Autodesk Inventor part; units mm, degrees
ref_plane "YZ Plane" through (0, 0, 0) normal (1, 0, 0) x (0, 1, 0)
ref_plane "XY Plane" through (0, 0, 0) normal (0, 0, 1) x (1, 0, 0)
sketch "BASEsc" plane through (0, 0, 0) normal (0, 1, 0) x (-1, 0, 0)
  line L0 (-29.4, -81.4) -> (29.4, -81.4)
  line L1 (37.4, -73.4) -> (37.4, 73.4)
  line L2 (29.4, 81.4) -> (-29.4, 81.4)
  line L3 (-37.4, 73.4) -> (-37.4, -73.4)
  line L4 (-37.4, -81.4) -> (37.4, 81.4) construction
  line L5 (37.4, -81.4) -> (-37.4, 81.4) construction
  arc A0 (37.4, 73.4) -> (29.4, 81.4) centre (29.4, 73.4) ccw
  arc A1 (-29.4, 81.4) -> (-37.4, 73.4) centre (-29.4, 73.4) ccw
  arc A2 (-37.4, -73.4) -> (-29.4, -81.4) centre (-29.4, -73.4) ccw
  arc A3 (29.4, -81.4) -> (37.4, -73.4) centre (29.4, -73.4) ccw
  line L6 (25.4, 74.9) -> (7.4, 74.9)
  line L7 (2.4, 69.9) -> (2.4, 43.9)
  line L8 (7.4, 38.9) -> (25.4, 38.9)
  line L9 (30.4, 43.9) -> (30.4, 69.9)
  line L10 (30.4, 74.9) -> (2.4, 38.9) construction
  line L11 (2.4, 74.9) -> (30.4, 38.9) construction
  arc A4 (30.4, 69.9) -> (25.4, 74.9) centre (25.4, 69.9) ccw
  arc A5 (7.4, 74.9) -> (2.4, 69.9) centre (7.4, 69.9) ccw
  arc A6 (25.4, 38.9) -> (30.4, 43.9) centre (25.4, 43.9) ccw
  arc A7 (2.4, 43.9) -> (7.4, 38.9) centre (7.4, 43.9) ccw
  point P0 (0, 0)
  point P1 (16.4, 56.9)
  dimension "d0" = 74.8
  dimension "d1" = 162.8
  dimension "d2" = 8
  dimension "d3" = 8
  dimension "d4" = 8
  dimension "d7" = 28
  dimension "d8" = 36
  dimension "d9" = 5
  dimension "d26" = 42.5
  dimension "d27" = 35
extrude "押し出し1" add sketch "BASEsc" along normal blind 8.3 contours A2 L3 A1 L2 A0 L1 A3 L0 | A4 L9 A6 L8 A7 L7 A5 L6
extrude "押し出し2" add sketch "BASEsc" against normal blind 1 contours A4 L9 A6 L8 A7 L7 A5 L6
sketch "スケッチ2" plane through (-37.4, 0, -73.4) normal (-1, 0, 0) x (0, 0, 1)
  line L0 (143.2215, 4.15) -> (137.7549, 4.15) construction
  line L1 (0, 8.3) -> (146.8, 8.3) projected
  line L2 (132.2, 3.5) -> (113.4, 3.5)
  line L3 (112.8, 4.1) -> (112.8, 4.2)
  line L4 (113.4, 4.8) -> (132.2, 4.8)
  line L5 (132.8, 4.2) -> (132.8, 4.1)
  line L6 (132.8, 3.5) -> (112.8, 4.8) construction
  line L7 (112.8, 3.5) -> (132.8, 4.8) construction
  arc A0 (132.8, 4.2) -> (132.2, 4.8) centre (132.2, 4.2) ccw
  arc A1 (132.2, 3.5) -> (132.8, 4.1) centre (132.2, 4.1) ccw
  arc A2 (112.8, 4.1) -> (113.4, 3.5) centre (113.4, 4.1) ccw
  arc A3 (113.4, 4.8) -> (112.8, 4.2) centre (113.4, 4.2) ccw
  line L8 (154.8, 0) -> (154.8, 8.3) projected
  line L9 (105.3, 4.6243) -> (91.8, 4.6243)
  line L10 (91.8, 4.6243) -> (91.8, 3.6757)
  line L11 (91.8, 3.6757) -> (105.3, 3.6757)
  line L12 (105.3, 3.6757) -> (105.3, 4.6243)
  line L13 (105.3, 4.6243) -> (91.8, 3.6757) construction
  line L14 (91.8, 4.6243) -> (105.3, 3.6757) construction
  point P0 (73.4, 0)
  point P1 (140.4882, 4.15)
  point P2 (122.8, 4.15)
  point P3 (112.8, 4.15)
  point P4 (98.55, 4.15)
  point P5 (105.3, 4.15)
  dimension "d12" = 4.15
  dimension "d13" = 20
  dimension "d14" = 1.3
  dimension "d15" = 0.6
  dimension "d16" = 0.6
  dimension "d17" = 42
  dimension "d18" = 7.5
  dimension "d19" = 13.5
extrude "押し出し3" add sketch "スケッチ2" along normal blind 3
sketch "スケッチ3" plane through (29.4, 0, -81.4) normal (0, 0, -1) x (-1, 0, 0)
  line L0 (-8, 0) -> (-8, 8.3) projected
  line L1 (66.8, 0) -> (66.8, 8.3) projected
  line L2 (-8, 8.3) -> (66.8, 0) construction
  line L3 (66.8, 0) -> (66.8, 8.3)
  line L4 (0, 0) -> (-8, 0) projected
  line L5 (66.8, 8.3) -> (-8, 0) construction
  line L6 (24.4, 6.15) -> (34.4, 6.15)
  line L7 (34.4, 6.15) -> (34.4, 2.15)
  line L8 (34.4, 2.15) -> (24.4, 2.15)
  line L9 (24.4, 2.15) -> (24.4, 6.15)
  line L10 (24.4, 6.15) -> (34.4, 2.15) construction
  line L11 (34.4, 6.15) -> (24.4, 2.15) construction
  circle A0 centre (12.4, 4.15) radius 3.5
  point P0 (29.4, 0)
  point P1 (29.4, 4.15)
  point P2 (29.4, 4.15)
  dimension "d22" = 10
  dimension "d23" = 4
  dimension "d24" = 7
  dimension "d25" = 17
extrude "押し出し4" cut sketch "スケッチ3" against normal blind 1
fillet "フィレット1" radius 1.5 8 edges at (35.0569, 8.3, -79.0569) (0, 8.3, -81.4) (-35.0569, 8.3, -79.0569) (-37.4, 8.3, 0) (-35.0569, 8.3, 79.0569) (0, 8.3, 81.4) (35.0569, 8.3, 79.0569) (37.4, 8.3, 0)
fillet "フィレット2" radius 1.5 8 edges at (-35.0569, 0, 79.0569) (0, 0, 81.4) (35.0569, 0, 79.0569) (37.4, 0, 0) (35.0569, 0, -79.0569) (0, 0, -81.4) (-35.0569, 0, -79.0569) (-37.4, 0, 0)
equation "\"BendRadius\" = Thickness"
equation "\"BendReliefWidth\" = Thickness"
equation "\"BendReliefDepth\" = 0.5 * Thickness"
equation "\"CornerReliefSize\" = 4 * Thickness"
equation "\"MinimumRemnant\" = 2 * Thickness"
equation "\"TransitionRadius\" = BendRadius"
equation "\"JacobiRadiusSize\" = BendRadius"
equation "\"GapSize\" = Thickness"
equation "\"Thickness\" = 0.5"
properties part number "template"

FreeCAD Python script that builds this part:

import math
import FreeCAD as App
import Part
import Sketcher
from FreeCAD import Vector


def edges_at(feature, points):
    """Names of the edges that pass closest to the given points."""
    edges = feature.Shape.Edges
    near = lambda p: min(range(len(edges)), key=lambda i: edges[i].distToShape(Part.Vertex(*p))[0])
    return sorted({f"Edge{near(p) + 1}" for p in points})

doc = App.newDocument("Part")
body = doc.addObject("PartDesign::Body", "Body")

sketch1 = body.newObject("Sketcher::SketchObject", "Sketch")
sketch1.AttachmentSupport = (doc.getObject("XZ_Plane"), [""])
sketch1.MapMode = "FlatFace"
sketch1.addGeometry(Part.ArcOfCircle(Part.Circle(Vector(29, -73, 0), Vector(0, 0, 1), 8), math.radians(-90), math.radians(0)), False)
sketch1.addGeometry(Part.LineSegment(Vector(29, -81, 0), Vector(-29, -81, 0)), False)
sketch1.addGeometry(Part.ArcOfCircle(Part.Circle(Vector(-29, -73, 0), Vector(0, 0, 1), 8), math.radians(180), math.radians(270)), False)
sketch1.addGeometry(Part.LineSegment(Vector(-37, -73, 0), Vector(-37, 73, 0)), False)
sketch1.addGeometry(Part.ArcOfCircle(Part.Circle(Vector(-29, 73, 0), Vector(0, 0, 1), 8), math.radians(90), math.radians(180)), False)
sketch1.addGeometry(Part.LineSegment(Vector(-29, 81, 0), Vector(29, 81, 0)), False)
sketch1.addGeometry(Part.ArcOfCircle(Part.Circle(Vector(29, 73, 0), Vector(0, 0, 1), 8), math.radians(0), math.radians(90)), False)
sketch1.addGeometry(Part.LineSegment(Vector(37, 73, 0), Vector(37, -73, 0)), False)
sketch1.addConstraint(Sketcher.Constraint("Tangent", 0, 1, 1, 1))
sketch1.addConstraint(Sketcher.Constraint("Tangent", 1, 2, 2, 2))
sketch1.addConstraint(Sketcher.Constraint("Tangent", 2, 1, 3, 1))
sketch1.addConstraint(Sketcher.Constraint("Tangent", 3, 2, 4, 2))
sketch1.addConstraint(Sketcher.Constraint("Tangent", 4, 1, 5, 1))
sketch1.addConstraint(Sketcher.Constraint("Tangent", 5, 2, 6, 2))
sketch1.addConstraint(Sketcher.Constraint("Tangent", 6, 1, 7, 1))
sketch1.addConstraint(Sketcher.Constraint("Tangent", 7, 2, 0, 2))
sketch1.addConstraint(Sketcher.Constraint("Horizontal", 1))
sketch1.addConstraint(Sketcher.Constraint("Vertical", 3))
sketch1.addConstraint(Sketcher.Constraint("Horizontal", 5))
sketch1.addConstraint(Sketcher.Constraint("Vertical", 7))
sketch1.addConstraint(Sketcher.Constraint("Equal", 0, 2))
sketch1.addConstraint(Sketcher.Constraint("Equal", 2, 4))
sketch1.addConstraint(Sketcher.Constraint("Equal", 4, 6))
sketch1.addConstraint(Sketcher.Constraint("Symmetric", 0, 3, 4, 3, -1, 1))
sketch1.addConstraint(Sketcher.Constraint("Radius", 0, 8.0))
sketch1.addConstraint(Sketcher.Constraint("DistanceX", 3, 2, 6, 1, 74.8))
sketch1.addConstraint(Sketcher.Constraint("DistanceY", 3, 1, 3, 2, 146.8))
pad1 = body.newObject("PartDesign::Pad", "Pad")
pad1.Profile = sketch1
pad1.Length = 8.3
pad1.Reversed = True

sketch2 = body.newObject("Sketcher::SketchObject", "Sketch001")
sketch2.AttachmentSupport = (doc.getObject("XZ_Plane"), [""])
sketch2.MapMode = "FlatFace"
sketch2.addGeometry(Part.ArcOfCircle(Part.Circle(Vector(-25, 70, 0), Vector(0, 0, 1), 5), math.radians(90), math.radians(180)), False)
sketch2.addGeometry(Part.LineSegment(Vector(-25, 75, 0), Vector(-7, 75, 0)), False)
sketch2.addGeometry(Part.ArcOfCircle(Part.Circle(Vector(-7, 70, 0), Vector(0, 0, 1), 5), math.radians(0), math.radians(90)), False)
sketch2.addGeometry(Part.LineSegment(Vector(-2, 70, 0), Vector(-2, 44, 0)), False)
sketch2.addGeometry(Part.ArcOfCircle(Part.Circle(Vector(-7, 44, 0), Vector(0, 0, 1), 5), math.radians(-90), math.radians(0)), False)
sketch2.addGeometry(Part.LineSegment(Vector(-7, 39, 0), Vector(-25, 39, 0)), False)
sketch2.addGeometry(Part.ArcOfCircle(Part.Circle(Vector(-25, 44, 0), Vector(0, 0, 1), 5), math.radians(180), math.radians(270)), False)
sketch2.addGeometry(Part.LineSegment(Vector(-30, 44, 0), Vector(-30, 70, 0)), False)
sketch2.addConstraint(Sketcher.Constraint("Tangent", 0, 1, 1, 1))
sketch2.addConstraint(Sketcher.Constraint("Tangent", 1, 2, 2, 2))
sketch2.addConstraint(Sketcher.Constraint("Tangent", 2, 1, 3, 1))
sketch2.addConstraint(Sketcher.Constraint("Tangent", 3, 2, 4, 2))
sketch2.addConstraint(Sketcher.Constraint("Tangent", 4, 1, 5, 1))
sketch2.addConstraint(Sketcher.Constraint("Tangent", 5, 2, 6, 2))
sketch2.addConstraint(Sketcher.Constraint("Tangent", 6, 1, 7, 1))
sketch2.addConstraint(Sketcher.Constraint("Tangent", 7, 2, 0, 2))
sketch2.addConstraint(Sketcher.Constraint("Horizontal", 1))
sketch2.addConstraint(Sketcher.Constraint("Vertical", 3))
sketch2.addConstraint(Sketcher.Constraint("Horizontal", 5))
sketch2.addConstraint(Sketcher.Constraint("Vertical", 7))
sketch2.addConstraint(Sketcher.Constraint("Equal", 0, 2))
sketch2.addConstraint(Sketcher.Constraint("Equal", 2, 4))
sketch2.addConstraint(Sketcher.Constraint("Equal", 4, 6))
sketch2.addConstraint(Sketcher.Constraint("Radius", 0, 5.0))
sketch2.addConstraint(Sketcher.Constraint("DistanceX", 1, 1, 1, 2, 18.0))
sketch2.addConstraint(Sketcher.Constraint("DistanceY", 3, 2, 3, 1, 26.0))
sketch2.addConstraint(Sketcher.Constraint("DistanceX", 0, 3, -1, 1, 25.4))
sketch2.addConstraint(Sketcher.Constraint("DistanceY", -1, 1, 0, 3, 69.9))
pad2 = body.newObject("PartDesign::Pad", "Pad001")
pad2.Profile = sketch2
pad2.Length = 1

sketch3 = body.newObject("Sketcher::SketchObject", "Sketch002")
sketch3.AttachmentSupport = (doc.getObject("YZ_Plane"), [""])
sketch3.MapMode = "FlatFace"
sketch3.AttachmentOffset = App.Placement(Vector(0, 0, -37.4), App.Rotation())
sketch3.addGeometry(Part.LineSegment(Vector(3.5, 40, 0), Vector(3.5, 58.8, 0)), False)
sketch3.addGeometry(Part.ArcOfCircle(Part.Circle(Vector(4.1, 58.8, 0), Vector(0, 0, 1), 0.6), math.radians(90), math.radians(180)), False)
sketch3.addGeometry(Part.LineSegment(Vector(4.1, 59.4, 0), Vector(4.2, 59.4, 0)), False)
sketch3.addGeometry(Part.ArcOfCircle(Part.Circle(Vector(4.2, 58.8, 0), Vector(0, 0, 1), 0.6), math.radians(0), math.radians(90)), False)
sketch3.addGeometry(Part.LineSegment(Vector(4.8, 58.8, 0), Vector(4.8, 40, 0)), False)
sketch3.addGeometry(Part.ArcOfCircle(Part.Circle(Vector(4.2, 40, 0), Vector(0, 0, 1), 0.6), math.radians(-90), math.radians(0)), False)
sketch3.addGeometry(Part.LineSegment(Vector(4.2, 39.4, 0), Vector(4.1, 39.4, 0)), False)
sketch3.addGeometry(Part.ArcOfCircle(Part.Circle(Vector(4.1, 40, 0), Vector(0, 0, 1), 0.6), math.radians(180), math.radians(270)), False)
sketch3.addGeometry(Part.LineSegment(Vector(3.68, 31.9, 0), Vector(4.62, 31.9, 0)), False)
sketch3.addGeometry(Part.LineSegment(Vector(4.62, 31.9, 0), Vector(4.62, 18.4, 0)), False)
sketch3.addGeometry(Part.LineSegment(Vector(4.62, 18.4, 0), Vector(3.68, 18.4, 0)), False)
sketch3.addGeometry(Part.LineSegment(Vector(3.68, 18.4, 0), Vector(3.68, 31.9, 0)), False)
sketch3.addConstraint(Sketcher.Constraint("Tangent", 0, 2, 1, 2))
sketch3.addConstraint(Sketcher.Constraint("Tangent", 1, 1, 2, 1))
sketch3.addConstraint(Sketcher.Constraint("Tangent", 2, 2, 3, 2))
sketch3.addConstraint(Sketcher.Constraint("Tangent", 3, 1, 4, 1))
sketch3.addConstraint(Sketcher.Constraint("Tangent", 4, 2, 5, 2))
sketch3.addConstraint(Sketcher.Constraint("Tangent", 5, 1, 6, 1))
sketch3.addConstraint(Sketcher.Constraint("Tangent", 6, 2, 7, 2))
sketch3.addConstraint(Sketcher.Constraint("Tangent", 7, 1, 0, 1))
sketch3.addConstraint(Sketcher.Constraint("Coincident", 8, 2, 9, 1))
sketch3.addConstraint(Sketcher.Constraint("Coincident", 9, 2, 10, 1))
sketch3.addConstraint(Sketcher.Constraint("Coincident", 10, 2, 11, 1))
sketch3.addConstraint(Sketcher.Constraint("Coincident", 11, 2, 8, 1))
sketch3.addConstraint(Sketcher.Constraint("Vertical", 0))
sketch3.addConstraint(Sketcher.Constraint("Horizontal", 2))
sketch3.addConstraint(Sketcher.Constraint("Vertical", 4))
sketch3.addConstraint(Sketcher.Constraint("Horizontal", 6))
sketch3.addConstraint(Sketcher.Constraint("Horizontal", 8))
sketch3.addConstraint(Sketcher.Constraint("Vertical", 9))
sketch3.addConstraint(Sketcher.Constraint("Horizontal", 10))
sketch3.addConstraint(Sketcher.Constraint("Vertical", 11))
sketch3.addConstraint(Sketcher.Constraint("Equal", 1, 3))
sketch3.addConstraint(Sketcher.Constraint("Equal", 3, 5))
sketch3.addConstraint(Sketcher.Constraint("Equal", 5, 7))
sketch3.addConstraint(Sketcher.Constraint("Radius", 1, 0.6))
sketch3.addConstraint(Sketcher.Constraint("DistanceY", 9, 2, 9, 1, 13.5))
sketch3.addConstraint(Sketcher.Constraint("DistanceX", 0, 2, 3, 1, 1.3))
sketch3.addConstraint(Sketcher.Constraint("DistanceY", 8, 2, 5, 1, 7.5))
sketch3.addConstraint(Sketcher.Constraint("DistanceY", 0, 1, 0, 2, 18.8))
sketch3.addConstraint(Sketcher.Constraint("DistanceY", -1, 1, 5, 3, 40.0))
sketch3.addConstraint(Sketcher.Constraint("DistanceX", -1, 1, 1, 3, 4.1))
sketch3.addConstraint(Sketcher.Constraint("DistanceX", 8, 1, 8, 2, 0.9486))
sketch3.addConstraint(Sketcher.Constraint("DistanceX", -1, 1, 8, 2, 4.6243))
pad3 = body.newObject("PartDesign::Pad", "Pad002")
pad3.Profile = sketch3
pad3.Length = 3
pad3.Reversed = True

sketch4 = body.newObject("Sketcher::SketchObject", "Sketch003")
sketch4.AttachmentSupport = (doc.getObject("XY_Plane"), [""])
sketch4.MapMode = "FlatFace"
sketch4.AttachmentOffset = App.Placement(Vector(0, 0, -81.4), App.Rotation())
sketch4.addGeometry(Part.LineSegment(Vector(-5, 6.2, 0), Vector(5, 6.2, 0)), False)
sketch4.addGeometry(Part.LineSegment(Vector(5, 6.2, 0), Vector(5, 2.1, 0)), False)
sketch4.addGeometry(Part.LineSegment(Vector(5, 2.1, 0), Vector(-5, 2.1, 0)), False)
sketch4.addGeometry(Part.LineSegment(Vector(-5, 2.1, 0), Vector(-5, 6.2, 0)), False)
sketch4.addGeometry(Part.Circle(Vector(17, 4.2, 0), Vector(0, 0, 1), 3.5), False)
sketch4.addConstraint(Sketcher.Constraint("Coincident", 0, 2, 1, 1))
sketch4.addConstraint(Sketcher.Constraint("Coincident", 1, 2, 2, 1))
sketch4.addConstraint(Sketcher.Constraint("Coincident", 2, 2, 3, 1))
sketch4.addConstraint(Sketcher.Constraint("Coincident", 3, 2, 0, 1))
sketch4.addConstraint(Sketcher.Constraint("Horizontal", 0))
sketch4.addConstraint(Sketcher.Constraint("Vertical", 1))
sketch4.addConstraint(Sketcher.Constraint("Horizontal", 2))
sketch4.addConstraint(Sketcher.Constraint("Vertical", 3))
sketch4.addConstraint(Sketcher.Constraint("Diameter", 4, 7.0))
sketch4.addConstraint(Sketcher.Constraint("DistanceX", 0, 1, 0, 2, 10.0))
sketch4.addConstraint(Sketcher.Constraint("DistanceY", 1, 2, 1, 1, 4.0))
sketch4.addConstraint(Sketcher.Constraint("DistanceX", -1, 1, 4, 3, 17.0))
sketch4.addConstraint(Sketcher.Constraint("DistanceX", -1, 1, 0, 2, 5.0))
sketch4.addConstraint(Sketcher.Constraint("DistanceY", 4, 3, 0, 2, 2.0))
sketch4.addConstraint(Sketcher.Constraint("DistanceY", -1, 1, 4, 3, 4.15))
pocket1 = body.newObject("PartDesign::Pocket", "Pocket")
pocket1.Profile = sketch4
pocket1.Length = 1
pocket1.Reversed = True
doc.recompute()

fillet = body.newObject("PartDesign::Fillet", "Fillet")
fillet.Base = (pocket1, edges_at(pocket1, [
    (35.057, 8.3, -79.057),
    (0, 8.3, -81.4),
    (-35.057, 8.3, -79.057),
    (-37.4, 8.3, 0),
    (-35.057, 8.3, 79.057),
    (0, 8.3, 81.4),
    (35.057, 8.3, 79.057),
    (37.4, 8.3, 0),
]))
fillet.Radius = 1.5
doc.recompute()

fillet2 = body.newObject("PartDesign::Fillet", "Fillet001")
fillet2.Base = (fillet, edges_at(fillet, [
    (-35.057, 0, 79.057),
    (0, 0, 81.4),
    (35.057, 0, 79.057),
    (37.4, 0, 0),
    (35.057, 0, -79.057),
    (0, 0, -81.4),
    (-35.057, 0, -79.057),
    (-37.4, 0, 0),
]))
fillet2.Radius = 1.5

doc.recompute()
